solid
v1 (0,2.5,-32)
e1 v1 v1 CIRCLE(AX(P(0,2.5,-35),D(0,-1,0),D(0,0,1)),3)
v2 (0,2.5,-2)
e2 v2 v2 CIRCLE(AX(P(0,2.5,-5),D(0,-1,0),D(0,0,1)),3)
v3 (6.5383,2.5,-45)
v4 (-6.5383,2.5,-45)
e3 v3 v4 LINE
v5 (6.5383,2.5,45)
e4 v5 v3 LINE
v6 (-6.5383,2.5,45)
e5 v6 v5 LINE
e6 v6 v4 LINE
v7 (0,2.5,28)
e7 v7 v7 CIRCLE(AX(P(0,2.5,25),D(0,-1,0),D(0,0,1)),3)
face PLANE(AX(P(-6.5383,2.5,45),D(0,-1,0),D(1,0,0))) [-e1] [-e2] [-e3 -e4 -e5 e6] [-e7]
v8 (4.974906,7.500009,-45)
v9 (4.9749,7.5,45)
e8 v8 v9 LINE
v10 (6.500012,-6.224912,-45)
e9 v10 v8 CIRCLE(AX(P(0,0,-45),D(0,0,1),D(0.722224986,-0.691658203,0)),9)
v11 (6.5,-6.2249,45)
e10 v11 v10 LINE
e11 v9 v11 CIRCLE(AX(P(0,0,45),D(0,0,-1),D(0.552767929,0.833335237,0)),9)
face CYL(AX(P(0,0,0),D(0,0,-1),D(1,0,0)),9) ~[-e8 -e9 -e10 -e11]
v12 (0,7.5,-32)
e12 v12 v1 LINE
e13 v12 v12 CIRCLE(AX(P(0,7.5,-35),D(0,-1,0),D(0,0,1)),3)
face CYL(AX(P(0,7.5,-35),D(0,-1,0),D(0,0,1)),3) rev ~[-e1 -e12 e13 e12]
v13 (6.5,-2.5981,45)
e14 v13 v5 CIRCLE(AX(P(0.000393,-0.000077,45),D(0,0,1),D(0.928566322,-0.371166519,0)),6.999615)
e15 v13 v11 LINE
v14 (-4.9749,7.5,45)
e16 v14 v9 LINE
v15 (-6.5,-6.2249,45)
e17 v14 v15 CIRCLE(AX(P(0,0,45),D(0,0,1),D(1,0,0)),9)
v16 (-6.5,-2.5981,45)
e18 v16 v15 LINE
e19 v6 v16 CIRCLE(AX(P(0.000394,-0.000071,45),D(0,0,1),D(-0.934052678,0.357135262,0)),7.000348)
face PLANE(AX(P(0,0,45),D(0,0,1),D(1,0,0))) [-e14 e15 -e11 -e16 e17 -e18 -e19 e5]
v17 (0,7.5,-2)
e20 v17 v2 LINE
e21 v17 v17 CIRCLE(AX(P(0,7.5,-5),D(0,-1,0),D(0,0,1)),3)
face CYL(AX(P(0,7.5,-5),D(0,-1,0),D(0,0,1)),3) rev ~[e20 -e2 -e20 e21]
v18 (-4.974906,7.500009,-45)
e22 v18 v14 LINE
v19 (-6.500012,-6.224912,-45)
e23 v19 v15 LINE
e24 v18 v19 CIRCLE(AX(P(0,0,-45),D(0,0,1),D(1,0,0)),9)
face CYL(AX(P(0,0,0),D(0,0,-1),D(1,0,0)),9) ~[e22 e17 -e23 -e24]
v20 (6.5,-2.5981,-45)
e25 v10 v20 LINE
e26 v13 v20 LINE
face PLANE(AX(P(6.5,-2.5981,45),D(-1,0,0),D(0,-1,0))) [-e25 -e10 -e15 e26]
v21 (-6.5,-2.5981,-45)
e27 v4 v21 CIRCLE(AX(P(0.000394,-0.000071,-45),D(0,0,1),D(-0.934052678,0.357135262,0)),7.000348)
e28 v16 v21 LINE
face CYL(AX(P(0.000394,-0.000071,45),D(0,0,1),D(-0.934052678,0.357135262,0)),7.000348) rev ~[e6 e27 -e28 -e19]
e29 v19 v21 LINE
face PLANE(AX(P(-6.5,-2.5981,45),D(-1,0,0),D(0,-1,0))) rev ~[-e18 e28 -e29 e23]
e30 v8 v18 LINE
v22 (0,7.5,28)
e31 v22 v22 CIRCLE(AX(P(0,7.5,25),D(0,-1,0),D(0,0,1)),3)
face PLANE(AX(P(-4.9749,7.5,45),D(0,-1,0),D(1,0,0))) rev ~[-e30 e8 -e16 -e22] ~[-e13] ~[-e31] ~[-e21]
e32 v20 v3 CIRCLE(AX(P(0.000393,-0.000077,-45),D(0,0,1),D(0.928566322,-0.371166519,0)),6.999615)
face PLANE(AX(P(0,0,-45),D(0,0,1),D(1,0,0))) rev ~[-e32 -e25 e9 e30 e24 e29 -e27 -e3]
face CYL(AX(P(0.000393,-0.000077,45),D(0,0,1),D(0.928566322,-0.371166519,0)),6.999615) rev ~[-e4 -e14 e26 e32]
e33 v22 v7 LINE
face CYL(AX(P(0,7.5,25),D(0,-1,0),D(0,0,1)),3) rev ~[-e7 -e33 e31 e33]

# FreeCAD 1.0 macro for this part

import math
import FreeCAD as App
import Part
import Sketcher

V = App.Vector

doc = App.newDocument("Part")
body = doc.addObject("PartDesign::Body", "Body")

sketch1 = body.newObject("Sketcher::SketchObject", "Sketch")
sketch1.AttachmentSupport = (doc.getObject("XY_Plane"), [""])
sketch1.MapMode = "FlatFace"
sketch1.addGeometry(Part.Circle(V(0, 0, 0), V(0, 0, 1), 9), False)
sketch1.addConstraint([
    Sketcher.Constraint("Coincident", 0, 3, -1, 1),
    Sketcher.Constraint("Diameter", 0, 18.0),
])
pad1 = body.newObject("PartDesign::Pad", "Pad")
pad1.Profile = sketch1
pad1.Length = 90
pad1.Midplane = True

sketch2 = body.newObject("Sketcher::SketchObject", "Sketch001")
sketch2.AttachmentSupport = (doc.getObject("XY_Plane"), [""])
sketch2.MapMode = "FlatFace"
sketch2.AttachmentOffset = App.Placement(V(0, 0, 45), App.Rotation())
sketch2.addGeometry([
    Part.LineSegment(V(-4.9749, 7.5, 0), V(4.9749, 7.5, 0)),
    Part.ArcOfCircle(Part.Circle(V(0, 0, 0), V(0, 0, 1), 9), math.radians(56.442888), math.radians(123.557112)),
    Part.ArcOfCircle(Part.Circle(V(0, 0, 0), V(0, 0, 1), 9), math.radians(-136.238486), math.radians(-43.761514)),
    Part.LineSegment(V(6.5, -6.2249, 0), V(6.5, -2.5981, 0)),
    Part.ArcOfCircle(Part.Circle(V(0, 0, 0), V(0, 0, 1), 6.999955), math.radians(-21.78697), math.radians(20.924974)),
    Part.LineSegment(V(6.5383, 2.5, 0), V(-6.5383, 2.5, 0)),
    Part.ArcOfCircle(Part.Circle(V(0, 0, 0), V(0, 0, 1), 7.000009), math.radians(159.075026), math.radians(201.78697)),
    Part.LineSegment(V(-6.5, -2.5981, 0), V(-6.5, -6.2249, 0)),
], False)
sketch2.addConstraint([
    Sketcher.Constraint("Coincident", 0, 1, 1, 2),
    Sketcher.Constraint("Coincident", 1, 1, 0, 2),
    Sketcher.Constraint("Coincident", 2, 2, 3, 1),
    Sketcher.Constraint("Coincident", 3, 2, 4, 1),
    Sketcher.Constraint("Coincident", 4, 2, 5, 1),
    Sketcher.Constraint("Coincident", 5, 2, 6, 1),
    Sketcher.Constraint("Coincident", 6, 2, 7, 1),
    Sketcher.Constraint("Coincident", 7, 2, 2, 1),
    Sketcher.Constraint("Horizontal", 0),
    Sketcher.Constraint("Vertical", 3),
    Sketcher.Constraint("Horizontal", 5),
    Sketcher.Constraint("Vertical", 7),
    Sketcher.Constraint("Coincident", 1, 3, -1, 1),
    Sketcher.Constraint("Coincident", 2, 3, -1, 1),
    Sketcher.Constraint("Coincident", 4, 3, -1, 1),
    Sketcher.Constraint("Coincident", 6, 3, -1, 1),
    Sketcher.Constraint("Equal", 1, 2),
    Sketcher.Constraint("Equal", 4, 6),
    Sketcher.Constraint("Horizontal", 3, 2, 6, 2),
    Sketcher.Constraint("Radius", 1, 9.0),
    Sketcher.Constraint("Radius", 4, 7.0),
    Sketcher.Constraint("DistanceY", 4, 2, 1, 1, 5.0),
    Sketcher.Constraint("DistanceY", -1, 1, 0, 1, 7.5),
    Sketcher.Constraint("DistanceX", -1, 1, 2, 2, 6.5),
])
pocket1 = body.newObject("PartDesign::Pocket", "Pocket")
pocket1.Profile = sketch2
pocket1.Type = "UpToFirst"

sketch3 = body.newObject("Sketcher::SketchObject", "Sketch002")
sketch3.AttachmentSupport = (doc.getObject("XZ_Plane"), [""])
sketch3.MapMode = "FlatFace"
sketch3.AttachmentOffset = App.Placement(V(0, 0, -7.5), App.Rotation())
sketch3.addGeometry([
    Part.Circle(V(0, 25, 0), V(0, 0, 1), 3),
    Part.Circle(V(0, -5, 0), V(0, 0, 1), 3),
    Part.Circle(V(0, -35, 0), V(0, 0, 1), 3),
], False)
sketch3.addConstraint([
    Sketcher.Constraint("Equal", 0, 1),
    Sketcher.Constraint("Equal", 1, 2),
    Sketcher.Constraint("PointOnObject", 0, 3, -2),
    Sketcher.Constraint("PointOnObject", 1, 3, -2),
    Sketcher.Constraint("PointOnObject", 2, 3, -2),
    Sketcher.Constraint("Diameter", 0, 6.0),
    Sketcher.Constraint("DistanceY", -1, 1, 0, 3, 25.0),
    Sketcher.Constraint("DistanceY", 1, 3, -1, 1, 5.0),
    Sketcher.Constraint("DistanceY", 2, 3, -1, 1, 35.0),
])
doc.recompute()
hole = body.newObject("PartDesign::Hole", "Hole")
hole.Profile = sketch3
hole.ThreadType = "None"
hole.Diameter = 6
hole.DepthType = "ThroughAll"
hole.Reversed = True

doc.recompute()
